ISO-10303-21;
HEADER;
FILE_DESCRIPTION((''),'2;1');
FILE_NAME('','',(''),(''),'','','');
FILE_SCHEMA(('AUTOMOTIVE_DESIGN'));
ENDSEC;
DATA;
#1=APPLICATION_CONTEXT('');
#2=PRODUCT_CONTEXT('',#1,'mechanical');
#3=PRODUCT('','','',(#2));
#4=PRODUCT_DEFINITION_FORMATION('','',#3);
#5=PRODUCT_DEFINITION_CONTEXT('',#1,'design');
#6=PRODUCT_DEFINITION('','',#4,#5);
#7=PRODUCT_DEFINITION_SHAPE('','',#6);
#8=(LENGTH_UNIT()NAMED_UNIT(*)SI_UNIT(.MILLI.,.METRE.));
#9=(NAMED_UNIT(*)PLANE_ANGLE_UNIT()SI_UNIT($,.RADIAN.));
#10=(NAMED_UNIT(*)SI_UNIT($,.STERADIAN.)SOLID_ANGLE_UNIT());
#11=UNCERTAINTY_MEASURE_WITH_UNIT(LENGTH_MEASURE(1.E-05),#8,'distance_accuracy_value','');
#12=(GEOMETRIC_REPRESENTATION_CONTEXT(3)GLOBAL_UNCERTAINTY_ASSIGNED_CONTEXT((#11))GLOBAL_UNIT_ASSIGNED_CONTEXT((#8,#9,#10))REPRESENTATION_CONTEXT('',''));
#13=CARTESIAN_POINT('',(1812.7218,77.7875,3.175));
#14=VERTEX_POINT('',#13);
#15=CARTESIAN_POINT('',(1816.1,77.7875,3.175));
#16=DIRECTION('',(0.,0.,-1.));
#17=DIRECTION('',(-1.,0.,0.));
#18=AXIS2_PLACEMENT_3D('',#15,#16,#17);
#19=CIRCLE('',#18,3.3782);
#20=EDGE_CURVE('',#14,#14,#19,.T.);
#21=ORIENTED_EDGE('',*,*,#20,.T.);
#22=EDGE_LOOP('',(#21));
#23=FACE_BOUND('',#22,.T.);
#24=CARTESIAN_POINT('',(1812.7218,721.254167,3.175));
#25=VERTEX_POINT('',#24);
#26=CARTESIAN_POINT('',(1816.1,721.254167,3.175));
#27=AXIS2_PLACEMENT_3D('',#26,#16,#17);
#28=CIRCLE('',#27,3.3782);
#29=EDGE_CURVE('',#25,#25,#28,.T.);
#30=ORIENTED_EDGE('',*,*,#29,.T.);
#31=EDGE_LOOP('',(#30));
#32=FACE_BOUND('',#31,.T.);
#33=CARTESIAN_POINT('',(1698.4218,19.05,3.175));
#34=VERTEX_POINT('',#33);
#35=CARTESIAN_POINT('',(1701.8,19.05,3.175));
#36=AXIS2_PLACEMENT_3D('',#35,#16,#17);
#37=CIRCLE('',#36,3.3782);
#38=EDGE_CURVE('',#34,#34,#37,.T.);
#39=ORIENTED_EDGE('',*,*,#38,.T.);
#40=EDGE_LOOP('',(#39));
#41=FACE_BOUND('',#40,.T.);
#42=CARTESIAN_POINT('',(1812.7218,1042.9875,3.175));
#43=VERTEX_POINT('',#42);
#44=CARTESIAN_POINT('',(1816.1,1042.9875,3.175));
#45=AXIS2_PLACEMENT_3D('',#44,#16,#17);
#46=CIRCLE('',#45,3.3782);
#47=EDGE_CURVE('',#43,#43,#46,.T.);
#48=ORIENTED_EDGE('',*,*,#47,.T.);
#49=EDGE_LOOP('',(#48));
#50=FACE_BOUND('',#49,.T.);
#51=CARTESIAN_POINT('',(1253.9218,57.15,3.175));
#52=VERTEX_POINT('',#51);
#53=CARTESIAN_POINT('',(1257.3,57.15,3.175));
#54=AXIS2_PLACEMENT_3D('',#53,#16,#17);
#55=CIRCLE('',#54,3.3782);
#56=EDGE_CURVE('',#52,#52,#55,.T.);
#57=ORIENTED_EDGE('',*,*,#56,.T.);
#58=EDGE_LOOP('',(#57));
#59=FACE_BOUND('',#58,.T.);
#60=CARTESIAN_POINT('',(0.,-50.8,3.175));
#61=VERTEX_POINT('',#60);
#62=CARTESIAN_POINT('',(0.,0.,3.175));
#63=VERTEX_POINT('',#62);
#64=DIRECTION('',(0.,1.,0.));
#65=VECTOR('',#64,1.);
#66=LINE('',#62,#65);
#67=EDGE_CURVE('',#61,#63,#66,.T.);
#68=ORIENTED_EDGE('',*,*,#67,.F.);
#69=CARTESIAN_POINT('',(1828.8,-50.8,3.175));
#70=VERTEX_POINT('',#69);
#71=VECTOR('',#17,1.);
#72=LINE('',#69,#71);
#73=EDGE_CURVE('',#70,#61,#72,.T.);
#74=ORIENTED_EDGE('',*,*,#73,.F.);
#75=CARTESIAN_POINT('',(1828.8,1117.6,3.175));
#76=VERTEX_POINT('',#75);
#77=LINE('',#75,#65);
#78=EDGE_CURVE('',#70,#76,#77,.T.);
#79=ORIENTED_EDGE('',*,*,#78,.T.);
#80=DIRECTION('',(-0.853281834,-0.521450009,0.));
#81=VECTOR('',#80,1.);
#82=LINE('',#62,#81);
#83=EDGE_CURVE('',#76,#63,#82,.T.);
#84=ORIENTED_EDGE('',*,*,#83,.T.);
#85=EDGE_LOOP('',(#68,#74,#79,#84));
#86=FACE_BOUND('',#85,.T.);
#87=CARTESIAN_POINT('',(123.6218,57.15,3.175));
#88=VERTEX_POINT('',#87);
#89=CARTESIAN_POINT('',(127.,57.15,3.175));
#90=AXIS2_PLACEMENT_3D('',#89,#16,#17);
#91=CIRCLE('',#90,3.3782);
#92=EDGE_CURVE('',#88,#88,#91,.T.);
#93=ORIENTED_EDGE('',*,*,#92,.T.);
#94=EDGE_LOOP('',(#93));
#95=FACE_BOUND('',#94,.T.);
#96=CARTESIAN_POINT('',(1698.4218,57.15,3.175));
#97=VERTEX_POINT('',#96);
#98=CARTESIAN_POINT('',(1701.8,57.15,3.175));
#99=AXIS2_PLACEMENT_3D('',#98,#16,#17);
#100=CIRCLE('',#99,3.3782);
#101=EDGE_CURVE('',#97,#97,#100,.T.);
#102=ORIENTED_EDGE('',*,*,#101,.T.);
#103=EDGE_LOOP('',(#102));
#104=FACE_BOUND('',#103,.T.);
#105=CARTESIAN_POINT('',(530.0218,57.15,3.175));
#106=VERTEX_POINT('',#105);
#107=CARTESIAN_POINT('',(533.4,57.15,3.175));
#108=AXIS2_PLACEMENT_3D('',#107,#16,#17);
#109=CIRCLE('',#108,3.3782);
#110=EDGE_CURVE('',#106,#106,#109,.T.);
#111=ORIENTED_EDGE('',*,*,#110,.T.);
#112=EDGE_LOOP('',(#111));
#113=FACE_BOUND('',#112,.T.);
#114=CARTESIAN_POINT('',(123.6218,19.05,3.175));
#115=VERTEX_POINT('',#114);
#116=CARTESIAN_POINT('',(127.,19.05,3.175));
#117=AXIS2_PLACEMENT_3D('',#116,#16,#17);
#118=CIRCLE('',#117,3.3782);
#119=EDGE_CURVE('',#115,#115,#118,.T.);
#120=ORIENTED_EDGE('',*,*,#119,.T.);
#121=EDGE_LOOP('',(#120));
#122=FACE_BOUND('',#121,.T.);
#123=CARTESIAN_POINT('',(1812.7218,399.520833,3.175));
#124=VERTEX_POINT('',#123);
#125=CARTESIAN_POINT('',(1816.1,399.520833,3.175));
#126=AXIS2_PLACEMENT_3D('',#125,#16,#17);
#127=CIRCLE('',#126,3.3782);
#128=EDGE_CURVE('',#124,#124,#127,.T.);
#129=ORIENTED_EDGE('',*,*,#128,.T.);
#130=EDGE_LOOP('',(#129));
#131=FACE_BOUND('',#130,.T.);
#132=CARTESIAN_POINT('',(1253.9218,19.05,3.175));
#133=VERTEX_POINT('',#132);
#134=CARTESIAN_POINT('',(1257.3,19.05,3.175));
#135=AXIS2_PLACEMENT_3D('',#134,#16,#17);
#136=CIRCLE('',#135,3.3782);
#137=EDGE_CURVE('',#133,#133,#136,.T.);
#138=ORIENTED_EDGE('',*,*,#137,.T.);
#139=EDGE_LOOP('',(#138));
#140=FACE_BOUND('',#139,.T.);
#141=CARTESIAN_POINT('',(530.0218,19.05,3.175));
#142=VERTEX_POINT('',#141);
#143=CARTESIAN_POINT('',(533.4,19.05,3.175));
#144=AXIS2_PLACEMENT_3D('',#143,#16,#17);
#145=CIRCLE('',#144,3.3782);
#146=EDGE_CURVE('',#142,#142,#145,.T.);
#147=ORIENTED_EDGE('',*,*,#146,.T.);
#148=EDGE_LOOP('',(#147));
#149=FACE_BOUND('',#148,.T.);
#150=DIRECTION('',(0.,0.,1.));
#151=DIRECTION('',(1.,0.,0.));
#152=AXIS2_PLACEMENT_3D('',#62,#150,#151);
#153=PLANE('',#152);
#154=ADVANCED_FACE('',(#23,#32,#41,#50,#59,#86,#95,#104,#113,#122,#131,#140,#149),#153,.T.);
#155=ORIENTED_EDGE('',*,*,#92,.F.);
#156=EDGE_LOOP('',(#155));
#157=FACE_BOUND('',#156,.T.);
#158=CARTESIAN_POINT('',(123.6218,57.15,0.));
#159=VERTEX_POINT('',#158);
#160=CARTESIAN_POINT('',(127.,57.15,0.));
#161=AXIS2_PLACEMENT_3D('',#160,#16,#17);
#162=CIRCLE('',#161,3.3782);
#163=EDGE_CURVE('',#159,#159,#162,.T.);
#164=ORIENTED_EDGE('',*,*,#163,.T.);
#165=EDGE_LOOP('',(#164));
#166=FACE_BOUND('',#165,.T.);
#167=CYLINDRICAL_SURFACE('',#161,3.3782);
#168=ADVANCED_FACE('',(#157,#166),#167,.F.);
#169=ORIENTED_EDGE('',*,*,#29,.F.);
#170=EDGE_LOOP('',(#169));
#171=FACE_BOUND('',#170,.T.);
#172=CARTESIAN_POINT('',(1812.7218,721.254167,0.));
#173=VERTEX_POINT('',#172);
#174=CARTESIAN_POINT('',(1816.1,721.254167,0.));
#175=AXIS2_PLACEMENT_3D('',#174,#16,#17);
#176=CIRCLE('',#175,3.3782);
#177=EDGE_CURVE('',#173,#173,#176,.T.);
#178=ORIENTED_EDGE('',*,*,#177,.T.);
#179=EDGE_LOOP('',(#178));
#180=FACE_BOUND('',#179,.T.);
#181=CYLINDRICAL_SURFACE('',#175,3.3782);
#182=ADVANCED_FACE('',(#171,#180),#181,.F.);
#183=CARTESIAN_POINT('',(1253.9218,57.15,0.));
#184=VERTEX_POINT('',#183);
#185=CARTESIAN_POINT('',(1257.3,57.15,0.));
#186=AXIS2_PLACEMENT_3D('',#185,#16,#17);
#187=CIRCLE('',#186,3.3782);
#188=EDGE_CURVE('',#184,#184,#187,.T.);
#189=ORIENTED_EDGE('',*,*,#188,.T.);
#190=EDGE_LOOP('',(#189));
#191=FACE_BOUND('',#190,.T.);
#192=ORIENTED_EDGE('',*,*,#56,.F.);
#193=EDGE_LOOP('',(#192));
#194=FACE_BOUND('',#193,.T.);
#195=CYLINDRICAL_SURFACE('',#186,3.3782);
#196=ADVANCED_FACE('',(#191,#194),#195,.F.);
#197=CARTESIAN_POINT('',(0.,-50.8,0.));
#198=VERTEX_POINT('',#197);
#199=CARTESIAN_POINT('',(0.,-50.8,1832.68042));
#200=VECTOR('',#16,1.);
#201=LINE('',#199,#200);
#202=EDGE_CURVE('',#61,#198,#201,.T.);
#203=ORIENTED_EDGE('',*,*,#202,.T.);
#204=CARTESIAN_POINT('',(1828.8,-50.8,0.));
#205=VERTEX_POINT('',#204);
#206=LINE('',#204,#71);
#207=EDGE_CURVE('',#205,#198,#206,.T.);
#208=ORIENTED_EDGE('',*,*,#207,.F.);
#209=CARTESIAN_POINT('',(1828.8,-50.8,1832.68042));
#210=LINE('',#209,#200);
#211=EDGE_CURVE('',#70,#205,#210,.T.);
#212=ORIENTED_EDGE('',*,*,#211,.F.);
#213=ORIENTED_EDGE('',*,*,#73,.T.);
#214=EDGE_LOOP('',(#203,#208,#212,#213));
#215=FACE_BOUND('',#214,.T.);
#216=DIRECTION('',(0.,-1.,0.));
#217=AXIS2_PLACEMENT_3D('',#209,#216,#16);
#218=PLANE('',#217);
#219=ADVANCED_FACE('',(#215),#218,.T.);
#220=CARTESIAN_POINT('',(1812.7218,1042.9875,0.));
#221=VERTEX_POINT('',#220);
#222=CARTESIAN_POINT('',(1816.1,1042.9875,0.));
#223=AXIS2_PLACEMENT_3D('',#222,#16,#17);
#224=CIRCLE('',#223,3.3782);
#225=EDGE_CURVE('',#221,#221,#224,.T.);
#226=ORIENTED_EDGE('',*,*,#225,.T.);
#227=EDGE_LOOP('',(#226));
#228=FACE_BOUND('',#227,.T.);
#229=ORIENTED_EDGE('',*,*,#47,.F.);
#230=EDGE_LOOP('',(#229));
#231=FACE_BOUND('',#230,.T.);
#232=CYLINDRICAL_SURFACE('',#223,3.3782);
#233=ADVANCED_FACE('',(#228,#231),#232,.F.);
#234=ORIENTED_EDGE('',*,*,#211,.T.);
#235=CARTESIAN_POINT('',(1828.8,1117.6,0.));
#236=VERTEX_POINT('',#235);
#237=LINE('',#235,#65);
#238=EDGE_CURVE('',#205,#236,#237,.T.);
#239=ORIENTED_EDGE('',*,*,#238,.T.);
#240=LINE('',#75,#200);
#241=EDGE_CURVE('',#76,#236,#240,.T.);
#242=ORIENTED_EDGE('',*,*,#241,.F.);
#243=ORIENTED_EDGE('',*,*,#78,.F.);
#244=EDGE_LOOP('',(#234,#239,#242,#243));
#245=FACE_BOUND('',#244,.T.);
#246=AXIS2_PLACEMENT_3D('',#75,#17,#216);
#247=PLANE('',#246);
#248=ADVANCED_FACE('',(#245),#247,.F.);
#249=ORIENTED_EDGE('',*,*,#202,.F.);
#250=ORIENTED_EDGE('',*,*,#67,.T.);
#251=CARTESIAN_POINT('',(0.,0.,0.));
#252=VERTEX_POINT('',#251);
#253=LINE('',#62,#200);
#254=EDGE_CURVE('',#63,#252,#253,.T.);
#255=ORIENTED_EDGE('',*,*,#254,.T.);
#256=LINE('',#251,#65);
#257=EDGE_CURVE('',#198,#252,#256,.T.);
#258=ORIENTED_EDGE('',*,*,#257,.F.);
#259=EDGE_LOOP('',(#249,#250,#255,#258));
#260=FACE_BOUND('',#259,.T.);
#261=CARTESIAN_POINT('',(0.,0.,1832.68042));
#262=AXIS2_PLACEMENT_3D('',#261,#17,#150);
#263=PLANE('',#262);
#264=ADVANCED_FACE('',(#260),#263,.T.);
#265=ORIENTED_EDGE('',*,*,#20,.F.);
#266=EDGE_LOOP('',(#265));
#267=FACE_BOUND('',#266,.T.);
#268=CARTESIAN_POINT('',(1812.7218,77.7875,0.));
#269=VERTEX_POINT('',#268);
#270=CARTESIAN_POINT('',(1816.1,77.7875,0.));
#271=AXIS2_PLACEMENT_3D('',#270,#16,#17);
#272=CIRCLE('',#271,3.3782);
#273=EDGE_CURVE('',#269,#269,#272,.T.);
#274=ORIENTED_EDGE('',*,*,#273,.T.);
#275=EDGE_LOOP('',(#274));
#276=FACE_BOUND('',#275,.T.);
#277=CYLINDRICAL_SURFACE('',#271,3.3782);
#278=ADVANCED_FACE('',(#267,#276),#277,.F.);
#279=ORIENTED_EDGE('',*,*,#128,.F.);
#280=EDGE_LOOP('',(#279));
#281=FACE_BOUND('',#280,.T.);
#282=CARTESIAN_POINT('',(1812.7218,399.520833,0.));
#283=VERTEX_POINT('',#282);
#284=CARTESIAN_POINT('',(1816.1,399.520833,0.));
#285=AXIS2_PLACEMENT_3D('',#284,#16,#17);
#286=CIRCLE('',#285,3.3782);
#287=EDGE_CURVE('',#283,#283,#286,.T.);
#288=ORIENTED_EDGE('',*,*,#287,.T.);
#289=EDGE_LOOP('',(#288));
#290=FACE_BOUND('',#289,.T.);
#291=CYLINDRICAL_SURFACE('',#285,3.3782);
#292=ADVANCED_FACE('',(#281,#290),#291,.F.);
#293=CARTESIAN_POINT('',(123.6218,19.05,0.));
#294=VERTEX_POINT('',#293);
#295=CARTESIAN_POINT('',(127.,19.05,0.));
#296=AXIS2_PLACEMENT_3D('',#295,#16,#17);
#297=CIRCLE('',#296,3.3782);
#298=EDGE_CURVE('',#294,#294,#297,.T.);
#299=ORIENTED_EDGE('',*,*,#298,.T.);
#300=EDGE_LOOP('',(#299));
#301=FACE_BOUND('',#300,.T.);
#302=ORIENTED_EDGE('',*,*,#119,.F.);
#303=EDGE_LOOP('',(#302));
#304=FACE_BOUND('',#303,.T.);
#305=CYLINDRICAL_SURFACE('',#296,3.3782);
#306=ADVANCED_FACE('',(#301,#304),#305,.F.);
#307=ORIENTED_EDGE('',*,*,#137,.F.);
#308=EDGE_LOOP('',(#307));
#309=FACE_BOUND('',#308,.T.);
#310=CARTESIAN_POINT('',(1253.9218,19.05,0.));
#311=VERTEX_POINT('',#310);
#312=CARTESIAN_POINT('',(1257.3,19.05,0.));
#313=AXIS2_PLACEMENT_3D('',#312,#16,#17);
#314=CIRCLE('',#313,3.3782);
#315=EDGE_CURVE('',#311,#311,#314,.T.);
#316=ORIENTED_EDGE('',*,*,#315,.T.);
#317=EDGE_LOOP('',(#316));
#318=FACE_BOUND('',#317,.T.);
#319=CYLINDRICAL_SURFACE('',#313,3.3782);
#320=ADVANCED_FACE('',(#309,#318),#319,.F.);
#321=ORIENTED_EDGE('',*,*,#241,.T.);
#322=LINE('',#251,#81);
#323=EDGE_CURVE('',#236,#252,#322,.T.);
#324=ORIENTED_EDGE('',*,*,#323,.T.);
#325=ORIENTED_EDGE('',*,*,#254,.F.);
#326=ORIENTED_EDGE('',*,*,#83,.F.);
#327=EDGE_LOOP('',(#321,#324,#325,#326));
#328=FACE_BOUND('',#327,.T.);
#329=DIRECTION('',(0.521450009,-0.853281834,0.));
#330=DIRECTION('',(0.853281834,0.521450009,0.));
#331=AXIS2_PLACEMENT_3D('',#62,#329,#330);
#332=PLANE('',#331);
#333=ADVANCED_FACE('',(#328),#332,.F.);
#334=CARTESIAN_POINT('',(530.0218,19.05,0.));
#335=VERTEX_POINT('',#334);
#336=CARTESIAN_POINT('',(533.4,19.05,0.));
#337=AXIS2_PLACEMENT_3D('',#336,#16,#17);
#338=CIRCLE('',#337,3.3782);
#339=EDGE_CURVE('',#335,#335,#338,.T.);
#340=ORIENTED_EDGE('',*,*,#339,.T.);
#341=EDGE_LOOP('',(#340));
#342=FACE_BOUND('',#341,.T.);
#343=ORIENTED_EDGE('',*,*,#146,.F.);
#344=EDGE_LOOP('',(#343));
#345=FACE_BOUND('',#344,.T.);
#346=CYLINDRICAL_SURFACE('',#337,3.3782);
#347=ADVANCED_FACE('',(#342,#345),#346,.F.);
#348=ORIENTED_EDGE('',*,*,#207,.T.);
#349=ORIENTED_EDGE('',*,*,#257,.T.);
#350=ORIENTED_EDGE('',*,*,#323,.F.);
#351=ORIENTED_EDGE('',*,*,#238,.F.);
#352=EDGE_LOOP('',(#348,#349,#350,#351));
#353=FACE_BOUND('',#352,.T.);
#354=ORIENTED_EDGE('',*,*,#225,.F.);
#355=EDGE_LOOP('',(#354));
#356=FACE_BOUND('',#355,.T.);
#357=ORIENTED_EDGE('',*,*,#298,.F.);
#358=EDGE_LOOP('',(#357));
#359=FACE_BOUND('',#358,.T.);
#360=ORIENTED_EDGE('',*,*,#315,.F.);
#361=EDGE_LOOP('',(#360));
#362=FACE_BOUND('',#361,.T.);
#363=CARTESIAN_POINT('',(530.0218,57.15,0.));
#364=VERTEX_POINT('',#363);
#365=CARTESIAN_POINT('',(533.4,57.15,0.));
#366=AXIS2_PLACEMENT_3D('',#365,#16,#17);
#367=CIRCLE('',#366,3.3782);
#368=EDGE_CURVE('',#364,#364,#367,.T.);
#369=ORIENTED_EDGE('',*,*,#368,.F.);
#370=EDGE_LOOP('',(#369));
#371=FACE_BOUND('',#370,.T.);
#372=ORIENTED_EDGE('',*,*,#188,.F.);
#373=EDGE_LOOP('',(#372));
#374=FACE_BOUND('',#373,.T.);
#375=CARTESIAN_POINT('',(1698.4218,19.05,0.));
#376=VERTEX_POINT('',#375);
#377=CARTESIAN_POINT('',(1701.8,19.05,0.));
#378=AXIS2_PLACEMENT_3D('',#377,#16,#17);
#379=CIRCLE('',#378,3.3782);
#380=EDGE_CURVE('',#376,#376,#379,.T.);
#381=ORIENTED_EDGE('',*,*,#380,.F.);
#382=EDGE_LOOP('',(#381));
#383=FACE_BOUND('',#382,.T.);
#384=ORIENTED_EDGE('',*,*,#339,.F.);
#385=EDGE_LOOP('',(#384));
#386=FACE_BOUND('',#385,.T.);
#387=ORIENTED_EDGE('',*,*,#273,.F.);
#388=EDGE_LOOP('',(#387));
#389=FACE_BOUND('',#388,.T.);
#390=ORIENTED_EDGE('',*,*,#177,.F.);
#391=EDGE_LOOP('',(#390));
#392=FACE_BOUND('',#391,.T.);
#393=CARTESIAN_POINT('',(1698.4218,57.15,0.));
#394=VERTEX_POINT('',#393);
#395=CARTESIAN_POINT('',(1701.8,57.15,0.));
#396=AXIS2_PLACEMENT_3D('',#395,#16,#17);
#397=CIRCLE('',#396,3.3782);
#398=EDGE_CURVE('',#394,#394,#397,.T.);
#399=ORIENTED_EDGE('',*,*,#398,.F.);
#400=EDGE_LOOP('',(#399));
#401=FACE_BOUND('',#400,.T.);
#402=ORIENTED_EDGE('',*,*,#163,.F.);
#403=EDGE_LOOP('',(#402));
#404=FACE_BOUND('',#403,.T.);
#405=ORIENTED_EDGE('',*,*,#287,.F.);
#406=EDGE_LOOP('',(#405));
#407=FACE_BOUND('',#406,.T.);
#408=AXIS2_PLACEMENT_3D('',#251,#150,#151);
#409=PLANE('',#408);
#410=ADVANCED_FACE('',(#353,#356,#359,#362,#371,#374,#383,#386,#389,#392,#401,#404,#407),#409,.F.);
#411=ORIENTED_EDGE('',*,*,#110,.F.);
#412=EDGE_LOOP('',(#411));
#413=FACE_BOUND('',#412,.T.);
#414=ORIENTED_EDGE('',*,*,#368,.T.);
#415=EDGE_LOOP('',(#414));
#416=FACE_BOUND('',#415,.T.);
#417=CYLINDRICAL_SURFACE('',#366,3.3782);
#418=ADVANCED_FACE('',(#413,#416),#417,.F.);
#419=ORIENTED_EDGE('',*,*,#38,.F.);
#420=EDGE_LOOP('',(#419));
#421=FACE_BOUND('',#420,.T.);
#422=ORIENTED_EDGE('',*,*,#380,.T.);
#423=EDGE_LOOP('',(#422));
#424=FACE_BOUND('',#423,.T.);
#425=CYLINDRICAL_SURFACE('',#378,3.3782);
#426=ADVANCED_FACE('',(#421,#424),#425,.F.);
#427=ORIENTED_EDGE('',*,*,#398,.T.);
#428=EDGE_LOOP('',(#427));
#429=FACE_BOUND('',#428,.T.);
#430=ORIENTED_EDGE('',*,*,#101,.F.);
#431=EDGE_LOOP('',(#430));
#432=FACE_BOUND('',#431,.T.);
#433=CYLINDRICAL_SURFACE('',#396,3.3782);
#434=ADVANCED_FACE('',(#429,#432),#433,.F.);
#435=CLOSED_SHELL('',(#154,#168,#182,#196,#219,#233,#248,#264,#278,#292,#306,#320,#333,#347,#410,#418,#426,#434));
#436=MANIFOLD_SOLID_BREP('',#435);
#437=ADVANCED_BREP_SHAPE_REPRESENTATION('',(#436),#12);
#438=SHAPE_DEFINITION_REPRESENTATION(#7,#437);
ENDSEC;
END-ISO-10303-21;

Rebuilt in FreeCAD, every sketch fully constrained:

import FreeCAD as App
import Part
import Sketcher

V = App.Vector
Q = App.Units.Quantity


def add_polygon(sketch, points):
    """Adds a closed chain of lines whose ends are joined by coincident constraints."""
    first, n = sketch.GeometryCount, len(points)
    for a, b in zip(points, points[1:] + points[:1]):
        sketch.addGeometry(Part.LineSegment(App.Vector(*a, 0), App.Vector(*b, 0)), False)
    for i in range(n):
        sketch.addConstraint(Sketcher.Constraint("Coincident", first + i, 2, first + (i + 1) % n, 1))

doc = App.newDocument("Part")
params = doc.addObject("Spreadsheet::Sheet", "Params")
for row, (alias, value) in enumerate([
    ("sketch1_width", "72 in"),
    ("sketch1_height", "44 in"),
    ("pad1_length", "0.125 in"),
    ("sketch2_diameter", "0.266 in"),
    ("hole_diameter", "0.266 in"),
    ("sketch3_width", "72 in"),
    ("sketch3_height", "2 in"),
    ("pad2_length", "0.125 in"),
], start=1):
    params.set(f"A{row}", alias)
    params.set(f"B{row}", "=" + value)
    params.setAlias(f"B{row}", alias)

body = doc.addObject("PartDesign::Body", "Body")

sketch1 = doc.addObject("Sketcher::SketchObject", "Sketch")
body.addObject(sketch1)
sketch1.AttachmentSupport = (doc.XY_Plane, [""])
sketch1.MapMode = "FlatFace"
add_polygon(sketch1, [(1828.8, 1117.6), (0, 0), (1828.8, 0)])
sketch1.addConstraint([
    Sketcher.Constraint("Horizontal", 1),
    Sketcher.Constraint("Vertical", 2),
    Sketcher.Constraint("Coincident", 0, 2, -1, 1),
    Sketcher.Constraint("DistanceX", 1, 1, 1, 2, Q("72 in")),
    Sketcher.Constraint("DistanceY", 2, 1, 2, 2, Q("44 in")),
])
sketch1.setExpression("Constraints[6]", "Params.sketch1_width")
sketch1.setExpression("Constraints[7]", "Params.sketch1_height")
pad1 = doc.addObject("PartDesign::Pad", "Pad")
body.addObject(pad1)
pad1.Profile = sketch1
pad1.setExpression("Length", "Params.pad1_length")

sketch2 = doc.addObject("Sketcher::SketchObject", "Sketch001")
body.addObject(sketch2)
sketch2.AttachmentSupport = (doc.XY_Plane, [""])
sketch2.MapMode = "FlatFace"
sketch2.addGeometry([
    Part.Circle(V(1816.1, 77.7875, 0), V(0, 0, 1), 3.3782),
    Part.Circle(V(1816.1, 399.520833, 0), V(0, 0, 1), 3.3782),
    Part.Circle(V(1816.1, 721.254167, 0), V(0, 0, 1), 3.3782),
    Part.Circle(V(1816.1, 1042.9875, 0), V(0, 0, 1), 3.3782),
    Part.Circle(V(1701.8, 19.05, 0), V(0, 0, 1), 3.3782),
    Part.Circle(V(1701.8, 57.15, 0), V(0, 0, 1), 3.3782),
    Part.Circle(V(1257.3, 57.15, 0), V(0, 0, 1), 3.3782),
    Part.Circle(V(1257.3, 19.05, 0), V(0, 0, 1), 3.3782),
    Part.Circle(V(533.4, 57.15, 0), V(0, 0, 1), 3.3782),
    Part.Circle(V(533.4, 19.05, 0), V(0, 0, 1), 3.3782),
    Part.Circle(V(127, 57.15, 0), V(0, 0, 1), 3.3782),
    Part.Circle(V(127, 19.05, 0), V(0, 0, 1), 3.3782),
], False)
sketch2.addConstraint([
    Sketcher.Constraint("Equal", 0, 1),
    Sketcher.Constraint("Equal", 1, 2),
    Sketcher.Constraint("Equal", 2, 3),
    Sketcher.Constraint("Equal", 3, 4),
    Sketcher.Constraint("Equal", 4, 5),
    Sketcher.Constraint("Equal", 5, 6),
    Sketcher.Constraint("Equal", 6, 7),
    Sketcher.Constraint("Equal", 7, 8),
    Sketcher.Constraint("Equal", 8, 9),
    Sketcher.Constraint("Equal", 9, 10),
    Sketcher.Constraint("Equal", 10, 11),
    Sketcher.Constraint("Horizontal", 5, 3, 6, 3),
    Sketcher.Constraint("Horizontal", 4, 3, 7, 3),
    Sketcher.Constraint("Horizontal", 6, 3, 8, 3),
    Sketcher.Constraint("Horizontal", 7, 3, 9, 3),
    Sketcher.Constraint("Horizontal", 8, 3, 10, 3),
    Sketcher.Constraint("Horizontal", 9, 3, 11, 3),
    Sketcher.Constraint("Vertical", 0, 3, 1, 3),
    Sketcher.Constraint("Vertical", 1, 3, 2, 3),
    Sketcher.Constraint("Vertical", 2, 3, 3, 3),
    Sketcher.Constraint("Vertical", 4, 3, 5, 3),
    Sketcher.Constraint("Vertical", 6, 3, 7, 3),
    Sketcher.Constraint("Vertical", 8, 3, 9, 3),
    Sketcher.Constraint("Vertical", 10, 3, 11, 3),
    Sketcher.Constraint("Diameter", 0, Q("0.266 in")),
    Sketcher.Constraint("DistanceX", -1, 1, 4, 3, Q("67 in")),
    Sketcher.Constraint("DistanceX", -1, 1, 8, 3, Q("21 in")),
    Sketcher.Constraint("DistanceX", -1, 1, 10, 3, Q("5 in")),
    Sketcher.Constraint("DistanceY", 0, 3, 3, 3, Q("38 in")),
    Sketcher.Constraint("DistanceX", 6, 3, 0, 3, Q("22 in")),
    Sketcher.Constraint("DistanceX", -1, 1, 0, 3, Q("71.5 in")),
    Sketcher.Constraint("DistanceY", 4, 3, 5, 3, Q("1.5 in")),
    Sketcher.Constraint("DistanceY", -1, 1, 4, 3, Q("0.75 in")),
    Sketcher.Constraint("DistanceY", -1, 1, 0, 3, Q("3.0625 in")),
    Sketcher.Constraint("DistanceY", -1, 1, 1, 3, Q("399.520833 mm")),
    Sketcher.Constraint("DistanceY", -1, 1, 2, 3, Q("721.254167 mm")),
])
sketch2.setExpression("Constraints[24]", "Params.sketch2_diameter")
doc.recompute()
hole = doc.addObject("PartDesign::Hole", "Hole")
body.addObject(hole)
hole.Profile = sketch2
hole.ThreadType = "None"
hole.setExpression("Diameter", "Params.hole_diameter")
hole.DepthType = "ThroughAll"
hole.Reversed = True

sketch3 = doc.addObject("Sketcher::SketchObject", "Sketch002")
body.addObject(sketch3)
sketch3.AttachmentSupport = (doc.XY_Plane, [""])
sketch3.MapMode = "FlatFace"
add_polygon(sketch3, [(1828.8, 0), (1828.8, -50.8), (0, -50.8), (0, 0)])
sketch3.addConstraint([
    Sketcher.Constraint("Vertical", 0),
    Sketcher.Constraint("Horizontal", 1),
    Sketcher.Constraint("Vertical", 2),
    Sketcher.Constraint("Horizontal", 3),
    Sketcher.Constraint("Coincident", 2, 2, -1, 1),
    Sketcher.Constraint("DistanceX", 1, 2, 1, 1, Q("72 in")),
    Sketcher.Constraint("DistanceY", 0, 2, 0, 1, Q("2 in")),
])
sketch3.setExpression("Constraints[9]", "Params.sketch3_width")
sketch3.setExpression("Constraints[10]", "Params.sketch3_height")
pad2 = doc.addObject("PartDesign::Pad", "Pad001")
body.addObject(pad2)
pad2.Profile = sketch3
pad2.setExpression("Length", "Params.pad2_length")

doc.recompute()
